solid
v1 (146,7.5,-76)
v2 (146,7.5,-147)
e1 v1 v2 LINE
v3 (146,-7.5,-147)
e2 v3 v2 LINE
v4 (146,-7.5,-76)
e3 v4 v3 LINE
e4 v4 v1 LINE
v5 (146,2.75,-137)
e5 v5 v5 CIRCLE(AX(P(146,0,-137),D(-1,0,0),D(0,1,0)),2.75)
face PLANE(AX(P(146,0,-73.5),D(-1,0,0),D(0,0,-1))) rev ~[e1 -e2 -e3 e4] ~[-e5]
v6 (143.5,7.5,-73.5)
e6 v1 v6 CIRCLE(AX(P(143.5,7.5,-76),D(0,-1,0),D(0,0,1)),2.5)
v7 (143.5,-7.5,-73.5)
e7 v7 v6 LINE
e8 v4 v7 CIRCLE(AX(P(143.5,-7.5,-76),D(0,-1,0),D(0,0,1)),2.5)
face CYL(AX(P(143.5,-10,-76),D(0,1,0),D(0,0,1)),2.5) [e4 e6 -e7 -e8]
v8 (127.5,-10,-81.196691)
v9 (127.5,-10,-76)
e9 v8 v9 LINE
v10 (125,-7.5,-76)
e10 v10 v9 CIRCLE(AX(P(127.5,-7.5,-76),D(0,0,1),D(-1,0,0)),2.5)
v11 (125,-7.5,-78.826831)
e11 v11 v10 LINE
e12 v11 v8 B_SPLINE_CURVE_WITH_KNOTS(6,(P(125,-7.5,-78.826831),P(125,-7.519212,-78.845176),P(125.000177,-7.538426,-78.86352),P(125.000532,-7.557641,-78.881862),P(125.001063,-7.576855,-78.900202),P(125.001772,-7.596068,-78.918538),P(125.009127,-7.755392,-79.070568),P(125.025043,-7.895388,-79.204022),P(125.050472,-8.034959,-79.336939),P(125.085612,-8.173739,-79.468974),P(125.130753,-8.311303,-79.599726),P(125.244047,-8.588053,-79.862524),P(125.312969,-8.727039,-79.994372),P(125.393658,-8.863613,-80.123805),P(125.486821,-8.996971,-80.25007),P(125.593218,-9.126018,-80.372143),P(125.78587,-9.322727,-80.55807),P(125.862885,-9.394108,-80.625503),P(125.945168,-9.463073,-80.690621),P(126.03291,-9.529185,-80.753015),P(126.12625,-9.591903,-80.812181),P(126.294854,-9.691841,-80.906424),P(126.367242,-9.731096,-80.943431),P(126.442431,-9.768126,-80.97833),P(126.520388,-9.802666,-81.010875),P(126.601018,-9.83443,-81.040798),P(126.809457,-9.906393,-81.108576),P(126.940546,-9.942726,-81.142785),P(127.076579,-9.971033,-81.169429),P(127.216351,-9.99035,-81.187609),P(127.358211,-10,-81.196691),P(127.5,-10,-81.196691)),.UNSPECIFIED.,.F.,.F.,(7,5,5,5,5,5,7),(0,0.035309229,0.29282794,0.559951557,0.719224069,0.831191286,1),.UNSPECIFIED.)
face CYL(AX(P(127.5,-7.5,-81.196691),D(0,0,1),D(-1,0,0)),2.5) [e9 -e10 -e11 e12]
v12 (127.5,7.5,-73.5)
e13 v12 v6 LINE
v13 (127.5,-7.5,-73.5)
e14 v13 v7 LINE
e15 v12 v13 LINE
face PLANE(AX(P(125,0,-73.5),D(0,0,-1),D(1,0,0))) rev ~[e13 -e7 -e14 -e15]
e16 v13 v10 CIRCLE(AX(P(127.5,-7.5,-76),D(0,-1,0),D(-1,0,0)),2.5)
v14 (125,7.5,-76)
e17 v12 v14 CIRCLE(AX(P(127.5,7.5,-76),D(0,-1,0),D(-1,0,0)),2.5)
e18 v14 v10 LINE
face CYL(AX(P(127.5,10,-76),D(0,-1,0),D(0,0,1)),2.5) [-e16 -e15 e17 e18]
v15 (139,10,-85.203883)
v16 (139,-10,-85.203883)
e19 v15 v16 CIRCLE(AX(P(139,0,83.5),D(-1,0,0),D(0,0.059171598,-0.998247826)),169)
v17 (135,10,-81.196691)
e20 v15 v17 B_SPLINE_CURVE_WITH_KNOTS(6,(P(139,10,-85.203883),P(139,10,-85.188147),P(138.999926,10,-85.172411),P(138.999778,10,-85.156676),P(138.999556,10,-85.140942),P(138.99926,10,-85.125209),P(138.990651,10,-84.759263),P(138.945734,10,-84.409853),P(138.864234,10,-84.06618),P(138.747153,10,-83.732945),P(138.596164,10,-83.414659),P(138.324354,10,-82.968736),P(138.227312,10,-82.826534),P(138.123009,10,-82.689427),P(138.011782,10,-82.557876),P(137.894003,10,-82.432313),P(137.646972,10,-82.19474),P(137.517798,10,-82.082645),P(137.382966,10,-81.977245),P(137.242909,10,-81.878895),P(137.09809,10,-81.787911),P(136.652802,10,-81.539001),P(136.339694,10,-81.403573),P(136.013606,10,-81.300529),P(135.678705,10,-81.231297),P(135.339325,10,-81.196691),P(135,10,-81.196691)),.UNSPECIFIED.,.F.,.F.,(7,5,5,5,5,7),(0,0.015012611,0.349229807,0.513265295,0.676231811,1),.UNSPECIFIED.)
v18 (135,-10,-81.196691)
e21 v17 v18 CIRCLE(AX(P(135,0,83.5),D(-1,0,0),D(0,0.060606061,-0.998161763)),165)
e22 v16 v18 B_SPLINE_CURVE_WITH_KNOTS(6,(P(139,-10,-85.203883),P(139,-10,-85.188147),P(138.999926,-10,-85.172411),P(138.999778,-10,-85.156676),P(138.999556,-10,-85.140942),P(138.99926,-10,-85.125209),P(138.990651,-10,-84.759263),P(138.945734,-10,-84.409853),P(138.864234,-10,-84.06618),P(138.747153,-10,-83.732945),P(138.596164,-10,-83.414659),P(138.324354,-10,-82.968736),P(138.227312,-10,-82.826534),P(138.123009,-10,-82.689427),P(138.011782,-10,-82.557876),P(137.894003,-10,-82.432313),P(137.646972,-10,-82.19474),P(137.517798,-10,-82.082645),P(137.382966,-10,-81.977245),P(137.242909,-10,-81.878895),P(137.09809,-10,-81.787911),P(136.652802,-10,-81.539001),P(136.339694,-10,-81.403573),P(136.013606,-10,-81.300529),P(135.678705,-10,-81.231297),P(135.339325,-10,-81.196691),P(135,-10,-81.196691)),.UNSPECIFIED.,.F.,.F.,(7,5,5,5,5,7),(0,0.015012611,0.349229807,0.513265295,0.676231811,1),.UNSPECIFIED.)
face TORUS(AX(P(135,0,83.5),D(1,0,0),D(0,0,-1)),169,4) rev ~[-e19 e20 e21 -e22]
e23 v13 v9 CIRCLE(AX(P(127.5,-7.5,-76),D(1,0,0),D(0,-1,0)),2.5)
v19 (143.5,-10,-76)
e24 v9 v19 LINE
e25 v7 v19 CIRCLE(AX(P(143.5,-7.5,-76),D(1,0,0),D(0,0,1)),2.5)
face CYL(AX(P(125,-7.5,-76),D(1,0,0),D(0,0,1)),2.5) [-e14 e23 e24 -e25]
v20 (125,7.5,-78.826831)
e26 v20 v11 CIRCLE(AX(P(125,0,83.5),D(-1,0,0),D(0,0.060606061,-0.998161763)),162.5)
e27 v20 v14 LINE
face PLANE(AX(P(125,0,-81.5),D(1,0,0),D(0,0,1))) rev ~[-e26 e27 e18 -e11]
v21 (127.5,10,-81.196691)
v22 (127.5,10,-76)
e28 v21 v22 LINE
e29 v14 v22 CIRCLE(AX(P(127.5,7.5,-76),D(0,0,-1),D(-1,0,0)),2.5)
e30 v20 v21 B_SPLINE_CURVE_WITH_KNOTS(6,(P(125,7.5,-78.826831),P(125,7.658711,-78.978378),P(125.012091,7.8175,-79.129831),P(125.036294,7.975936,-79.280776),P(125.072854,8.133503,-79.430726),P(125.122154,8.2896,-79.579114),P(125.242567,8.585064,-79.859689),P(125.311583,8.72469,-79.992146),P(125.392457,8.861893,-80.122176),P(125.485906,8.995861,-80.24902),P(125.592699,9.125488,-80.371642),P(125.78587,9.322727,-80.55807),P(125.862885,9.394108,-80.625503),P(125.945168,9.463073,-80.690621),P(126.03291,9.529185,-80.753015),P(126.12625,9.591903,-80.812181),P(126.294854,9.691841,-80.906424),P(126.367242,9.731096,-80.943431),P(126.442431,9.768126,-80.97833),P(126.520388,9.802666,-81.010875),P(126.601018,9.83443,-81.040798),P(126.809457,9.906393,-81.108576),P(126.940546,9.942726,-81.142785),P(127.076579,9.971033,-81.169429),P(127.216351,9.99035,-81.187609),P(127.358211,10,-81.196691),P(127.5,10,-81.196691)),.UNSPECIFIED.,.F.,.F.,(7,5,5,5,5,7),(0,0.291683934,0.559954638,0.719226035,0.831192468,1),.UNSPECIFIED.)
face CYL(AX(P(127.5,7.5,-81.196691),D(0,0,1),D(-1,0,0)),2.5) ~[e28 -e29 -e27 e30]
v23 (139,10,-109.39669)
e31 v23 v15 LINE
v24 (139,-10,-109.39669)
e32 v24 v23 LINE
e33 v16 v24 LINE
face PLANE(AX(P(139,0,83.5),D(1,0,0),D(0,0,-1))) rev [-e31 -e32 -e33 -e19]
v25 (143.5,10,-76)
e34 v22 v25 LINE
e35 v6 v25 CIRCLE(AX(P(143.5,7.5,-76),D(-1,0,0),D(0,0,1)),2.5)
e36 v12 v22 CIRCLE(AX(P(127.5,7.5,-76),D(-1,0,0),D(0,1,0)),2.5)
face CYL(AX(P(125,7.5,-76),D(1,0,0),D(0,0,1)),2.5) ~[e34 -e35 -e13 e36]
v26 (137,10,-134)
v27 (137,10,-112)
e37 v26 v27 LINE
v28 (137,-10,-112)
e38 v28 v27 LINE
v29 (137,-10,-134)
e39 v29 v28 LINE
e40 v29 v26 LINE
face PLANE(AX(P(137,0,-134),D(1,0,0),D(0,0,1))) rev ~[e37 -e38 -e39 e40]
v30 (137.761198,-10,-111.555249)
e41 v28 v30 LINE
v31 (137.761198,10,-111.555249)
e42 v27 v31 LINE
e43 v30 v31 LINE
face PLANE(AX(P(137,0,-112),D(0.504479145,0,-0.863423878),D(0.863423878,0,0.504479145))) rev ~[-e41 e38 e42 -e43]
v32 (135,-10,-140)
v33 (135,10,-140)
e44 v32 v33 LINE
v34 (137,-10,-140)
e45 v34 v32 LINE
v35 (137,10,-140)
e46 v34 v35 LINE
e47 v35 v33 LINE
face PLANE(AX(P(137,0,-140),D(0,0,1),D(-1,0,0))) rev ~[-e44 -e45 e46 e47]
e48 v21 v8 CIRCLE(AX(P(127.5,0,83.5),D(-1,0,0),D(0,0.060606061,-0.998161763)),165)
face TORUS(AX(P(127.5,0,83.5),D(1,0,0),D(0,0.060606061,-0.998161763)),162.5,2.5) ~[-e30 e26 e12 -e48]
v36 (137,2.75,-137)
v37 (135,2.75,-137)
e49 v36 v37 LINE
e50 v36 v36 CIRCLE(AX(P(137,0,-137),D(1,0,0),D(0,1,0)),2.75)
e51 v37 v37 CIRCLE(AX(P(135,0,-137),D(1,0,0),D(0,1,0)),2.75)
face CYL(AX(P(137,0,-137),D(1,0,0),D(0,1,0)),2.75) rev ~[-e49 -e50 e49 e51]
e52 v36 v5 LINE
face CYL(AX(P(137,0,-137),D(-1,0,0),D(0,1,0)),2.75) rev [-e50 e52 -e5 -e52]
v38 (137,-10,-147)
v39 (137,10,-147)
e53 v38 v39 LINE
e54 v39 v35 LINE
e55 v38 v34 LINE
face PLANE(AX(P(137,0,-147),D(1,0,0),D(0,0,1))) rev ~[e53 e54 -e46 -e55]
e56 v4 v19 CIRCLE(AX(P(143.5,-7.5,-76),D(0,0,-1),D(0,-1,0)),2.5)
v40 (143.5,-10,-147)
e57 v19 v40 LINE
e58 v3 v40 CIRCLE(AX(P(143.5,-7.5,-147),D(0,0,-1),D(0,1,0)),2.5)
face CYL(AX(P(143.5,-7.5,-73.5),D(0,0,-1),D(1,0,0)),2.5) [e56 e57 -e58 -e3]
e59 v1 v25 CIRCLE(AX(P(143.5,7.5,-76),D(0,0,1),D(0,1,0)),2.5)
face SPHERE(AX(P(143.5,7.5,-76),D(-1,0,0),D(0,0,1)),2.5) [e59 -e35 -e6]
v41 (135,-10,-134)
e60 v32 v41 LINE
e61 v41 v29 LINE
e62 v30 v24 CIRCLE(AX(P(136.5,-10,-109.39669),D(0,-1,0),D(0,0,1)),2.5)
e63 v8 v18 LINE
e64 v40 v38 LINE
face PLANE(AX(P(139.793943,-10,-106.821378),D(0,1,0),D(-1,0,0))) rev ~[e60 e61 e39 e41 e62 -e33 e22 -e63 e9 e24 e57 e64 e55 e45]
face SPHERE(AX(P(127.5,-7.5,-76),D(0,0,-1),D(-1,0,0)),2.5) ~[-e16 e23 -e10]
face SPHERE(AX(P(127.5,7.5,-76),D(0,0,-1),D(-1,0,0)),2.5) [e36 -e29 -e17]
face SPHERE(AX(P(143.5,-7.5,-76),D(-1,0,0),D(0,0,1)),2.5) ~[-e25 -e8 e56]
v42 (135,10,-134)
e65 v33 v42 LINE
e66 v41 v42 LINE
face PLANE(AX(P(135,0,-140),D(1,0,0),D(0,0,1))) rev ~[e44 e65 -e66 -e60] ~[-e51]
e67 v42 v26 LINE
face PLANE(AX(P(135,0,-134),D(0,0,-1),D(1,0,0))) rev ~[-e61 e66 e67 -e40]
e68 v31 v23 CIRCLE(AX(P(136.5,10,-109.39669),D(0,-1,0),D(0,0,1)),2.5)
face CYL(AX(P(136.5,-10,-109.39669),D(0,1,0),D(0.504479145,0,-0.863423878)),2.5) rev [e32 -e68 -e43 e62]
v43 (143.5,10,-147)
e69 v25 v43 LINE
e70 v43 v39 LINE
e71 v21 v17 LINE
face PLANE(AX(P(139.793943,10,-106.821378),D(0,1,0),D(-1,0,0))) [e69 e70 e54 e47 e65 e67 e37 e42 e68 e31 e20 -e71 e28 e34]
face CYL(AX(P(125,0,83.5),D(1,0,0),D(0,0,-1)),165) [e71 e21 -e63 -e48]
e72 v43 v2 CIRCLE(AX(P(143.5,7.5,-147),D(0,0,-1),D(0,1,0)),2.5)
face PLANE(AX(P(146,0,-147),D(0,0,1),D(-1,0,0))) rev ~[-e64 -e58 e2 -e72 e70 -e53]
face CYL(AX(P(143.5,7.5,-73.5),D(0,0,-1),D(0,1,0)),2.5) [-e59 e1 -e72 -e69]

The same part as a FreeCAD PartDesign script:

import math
import FreeCAD as App
import Part
import Sketcher
from FreeCAD import Vector
Q = App.Units.Quantity


def edges_at(feature, points):
    """Names of the edges that pass closest to the given points."""
    edges = feature.Shape.Edges
    near = lambda p: min(range(len(edges)), key=lambda i: edges[i].distToShape(Part.Vertex(*p))[0])
    return sorted({f"Edge{near(p) + 1}" for p in points})

doc = App.newDocument("Part")
body = doc.addObject("PartDesign::Body", "Body")

# Sketch on XZ plane
sketch1 = doc.addObject("Sketcher::SketchObject", "Sketch")
body.addObject(sketch1)
sketch1.AttachmentSupport = (doc.XZ_Plane, [""])
sketch1.MapMode = "FlatFace"
sketch1.addGeometry([
    Part.LineSegment(Vector(9, 8.5, 0), Vector(-12, 8.5, 0)),  # 0
    Part.LineSegment(Vector(-12, 8.5, 0), Vector(-12, 0.5, 0)),  # 1
    Part.LineSegment(Vector(-12, 0.5, 0), Vector(-2, 0.5, 0)),  # 2
    Part.LineSegment(Vector(-2, 0.5, 0), Vector(2, -3.5, 0)),  # 3
    Part.LineSegment(Vector(2, -3.5, 0), Vector(2, -28.8, 0)),  # 4
    Part.LineSegment(Vector(2, -28.8, 0), Vector(0, -30, 0)),  # 5
    Part.LineSegment(Vector(0, -30, 0), Vector(0, -52, 0)),  # 6
    Part.LineSegment(Vector(0, -52, 0), Vector(-2, -52, 0)),  # 7
    Part.LineSegment(Vector(-2, -52, 0), Vector(-2, -58, 0)),  # 8
    Part.LineSegment(Vector(-2, -58, 0), Vector(0, -58, 0)),  # 9
    Part.LineSegment(Vector(0, -58, 0), Vector(0, -65, 0)),  # 10
    Part.LineSegment(Vector(0, -65, 0), Vector(9, -65, 0)),  # 11
    Part.LineSegment(Vector(9, -65, 0), Vector(9, 8.5, 0)),  # 12
], False)
sketch1.addConstraint([
    Sketcher.Constraint("Coincident", 0, 2, 1, 1),
    Sketcher.Constraint("Coincident", 1, 2, 2, 1),
    Sketcher.Constraint("Coincident", 2, 2, 3, 1),
    Sketcher.Constraint("Coincident", 3, 2, 4, 1),
    Sketcher.Constraint("Coincident", 4, 2, 5, 1),
    Sketcher.Constraint("Coincident", 5, 2, 6, 1),
    Sketcher.Constraint("Coincident", 6, 2, 7, 1),
    Sketcher.Constraint("Coincident", 7, 2, 8, 1),
    Sketcher.Constraint("Coincident", 8, 2, 9, 1),
    Sketcher.Constraint("Coincident", 9, 2, 10, 1),
    Sketcher.Constraint("Coincident", 10, 2, 11, 1),
    Sketcher.Constraint("Coincident", 11, 2, 12, 1),
    Sketcher.Constraint("Coincident", 12, 2, 0, 1),
    Sketcher.Constraint("Horizontal", 0),
    Sketcher.Constraint("Vertical", 1),
    Sketcher.Constraint("Horizontal", 2),
    Sketcher.Constraint("Vertical", 4),
    Sketcher.Constraint("Vertical", 6),
    Sketcher.Constraint("Horizontal", 7),
    Sketcher.Constraint("Vertical", 8),
    Sketcher.Constraint("Horizontal", 9),
    Sketcher.Constraint("Vertical", 10),
    Sketcher.Constraint("Horizontal", 11),
    Sketcher.Constraint("Vertical", 12),
    Sketcher.Constraint("PointOnObject", 5, 2, -2),
    Sketcher.Constraint("PointOnObject", 9, 2, -2),
    Sketcher.Constraint("Vertical", 2, 2, 7, 2),
    Sketcher.Constraint("DistanceX", 0, 2, 0, 1, 21.0),
    Sketcher.Constraint("DistanceX", 2, 1, 2, 2, 10.0),
    Sketcher.Constraint("DistanceX", 7, 2, 7, 1, 2.0),
    Sketcher.Constraint("DistanceY", 1, 2, 1, 1, 8.0),
    Sketcher.Constraint("DistanceY", 6, 2, 6, 1, 22.0),
    Sketcher.Constraint("DistanceY", 8, 2, 8, 1, 6.0),
    Sketcher.Constraint("DistanceY", 10, 2, 10, 1, 7.0),
    Sketcher.Constraint("Angle", 3, Q("-45 deg")),
    Sketcher.Constraint("DistanceY", 12, 1, 12, 2, 73.5),
    Sketcher.Constraint("DistanceX", -1, 1, 3, 2, 2.0),
    Sketcher.Constraint("DistanceY", 5, 2, -1, 1, 30.0),
    Sketcher.Constraint("Distance", 5, 2.316359),
])
pad1 = doc.addObject("PartDesign::Pad", "Pad")
body.addObject(pad1)
pad1.Profile = sketch1
pad1.Length = 20
pad1.Midplane = True

# Sketch on XZ plane
sketch2 = doc.addObject("Sketcher::SketchObject", "Sketch001")
body.addObject(sketch2)
sketch2.AttachmentSupport = (doc.XZ_Plane, [""])
sketch2.MapMode = "FlatFace"
sketch2.addGeometry([
    Part.LineSegment(Vector(-12, 0.5, 0), Vector(-12, -8.5, 0)),  # 0
    Part.LineSegment(Vector(-12, -8.5, 0), Vector(2, -8.5, 0)),  # 1
    Part.LineSegment(Vector(2, -8.5, 0), Vector(2, -3.5, 0)),  # 2
    Part.ArcOfCircle(Part.Circle(Vector(-2, -3.5, 0), Vector(0, 0, 1), 4), math.radians(0), math.radians(90)),  # 3
    Part.LineSegment(Vector(-2, 0.5, 0), Vector(-12, 0.5, 0)),  # 4
], False)
sketch2.addGeometry(Part.LineSegment(Vector(-12, 165.5, 0), Vector(2, 165.5, 0)), True)  # axis
sketch2.addConstraint([
    Sketcher.Constraint("Coincident", 0, 2, 1, 1),
    Sketcher.Constraint("Coincident", 1, 2, 2, 1),
    Sketcher.Constraint("Tangent", 2, 2, 3, 1),
    Sketcher.Constraint("Tangent", 3, 2, 4, 1),
    Sketcher.Constraint("Coincident", 4, 2, 0, 1),
    Sketcher.Constraint("Vertical", 0),
    Sketcher.Constraint("Horizontal", 1),
    Sketcher.Constraint("Vertical", 2),
    Sketcher.Constraint("Horizontal", 4),
    Sketcher.Constraint("Horizontal", 5),
    Sketcher.Constraint("Vertical", 4, 2, 5, 1),
    Sketcher.Constraint("Vertical", 2, 2, 5, 2),
    Sketcher.Constraint("Radius", 3, 4.0),
    Sketcher.Constraint("DistanceX", 1, 1, 1, 2, 14.0),
    Sketcher.Constraint("DistanceY", 0, 2, 0, 1, 9.0),
    Sketcher.Constraint("DistanceX", 3, 3, -1, 1, 2.0),
    Sketcher.Constraint("DistanceY", 4, 2, 5, 1, 165.0),
    Sketcher.Constraint("DistanceY", 3, 3, -1, 1, 3.5),
])
groove = doc.addObject("PartDesign::Groove", "Groove")
body.addObject(groove)
groove.Profile = sketch2
groove.ReferenceAxis = (sketch2, ["Axis0"])
groove.Angle = 360

# Sketch on YZ plane
sketch3 = doc.addObject("Sketcher::SketchObject", "Sketch002")
body.addObject(sketch3)
sketch3.AttachmentSupport = (doc.YZ_Plane, [""])
sketch3.MapMode = "FlatFace"
sketch3.addGeometry(Part.Circle(Vector(0, -55, 0), Vector(0, 0, 1), 2.8), False)
sketch3.addConstraint([
    Sketcher.Constraint("PointOnObject", 0, 3, -2),
    Sketcher.Constraint("Diameter", 0, 5.5),
    Sketcher.Constraint("DistanceY", 0, 3, -1, 1, 55.0),
])
pocket1 = doc.addObject("PartDesign::Pocket", "Pocket")
body.addObject(pocket1)
pocket1.Profile = sketch3
pocket1.Type = "ThroughAll"
pocket1.Midplane = True
doc.recompute()

fillet = doc.addObject("PartDesign::Fillet", "Fillet")
body.addObject(fillet)
fillet.Base = (pocket1, edges_at(pocket1, [
    (-12, 0, 0.5),
    (-12, 0, 0.5),
    (-12, 10, 4.652),
    (-12, -10, 4.652),
    (-12, 0, 8.5),
    (-1.5, -10, 8.5),
    (-1.5, 10, 8.5),
    (9, 0, 8.5),
    (9, 10, -28.25),
    (9, -10, -28.25),
    (2, 0, -28.831),
]))
fillet.Radius = 2.5
body2 = doc.addObject("PartDesign::Body", "Body001")
doc.recompute()

body.Placement = App.Placement(Vector(137, 0, -82), App.Rotation(Vector(0, 0, 1), 0))
boolean = doc.addObject("PartDesign::Boolean", "Boolean")
body2.addObject(boolean)
boolean.Type = "Fuse"
boolean.addObjects([body])

doc.recompute()
